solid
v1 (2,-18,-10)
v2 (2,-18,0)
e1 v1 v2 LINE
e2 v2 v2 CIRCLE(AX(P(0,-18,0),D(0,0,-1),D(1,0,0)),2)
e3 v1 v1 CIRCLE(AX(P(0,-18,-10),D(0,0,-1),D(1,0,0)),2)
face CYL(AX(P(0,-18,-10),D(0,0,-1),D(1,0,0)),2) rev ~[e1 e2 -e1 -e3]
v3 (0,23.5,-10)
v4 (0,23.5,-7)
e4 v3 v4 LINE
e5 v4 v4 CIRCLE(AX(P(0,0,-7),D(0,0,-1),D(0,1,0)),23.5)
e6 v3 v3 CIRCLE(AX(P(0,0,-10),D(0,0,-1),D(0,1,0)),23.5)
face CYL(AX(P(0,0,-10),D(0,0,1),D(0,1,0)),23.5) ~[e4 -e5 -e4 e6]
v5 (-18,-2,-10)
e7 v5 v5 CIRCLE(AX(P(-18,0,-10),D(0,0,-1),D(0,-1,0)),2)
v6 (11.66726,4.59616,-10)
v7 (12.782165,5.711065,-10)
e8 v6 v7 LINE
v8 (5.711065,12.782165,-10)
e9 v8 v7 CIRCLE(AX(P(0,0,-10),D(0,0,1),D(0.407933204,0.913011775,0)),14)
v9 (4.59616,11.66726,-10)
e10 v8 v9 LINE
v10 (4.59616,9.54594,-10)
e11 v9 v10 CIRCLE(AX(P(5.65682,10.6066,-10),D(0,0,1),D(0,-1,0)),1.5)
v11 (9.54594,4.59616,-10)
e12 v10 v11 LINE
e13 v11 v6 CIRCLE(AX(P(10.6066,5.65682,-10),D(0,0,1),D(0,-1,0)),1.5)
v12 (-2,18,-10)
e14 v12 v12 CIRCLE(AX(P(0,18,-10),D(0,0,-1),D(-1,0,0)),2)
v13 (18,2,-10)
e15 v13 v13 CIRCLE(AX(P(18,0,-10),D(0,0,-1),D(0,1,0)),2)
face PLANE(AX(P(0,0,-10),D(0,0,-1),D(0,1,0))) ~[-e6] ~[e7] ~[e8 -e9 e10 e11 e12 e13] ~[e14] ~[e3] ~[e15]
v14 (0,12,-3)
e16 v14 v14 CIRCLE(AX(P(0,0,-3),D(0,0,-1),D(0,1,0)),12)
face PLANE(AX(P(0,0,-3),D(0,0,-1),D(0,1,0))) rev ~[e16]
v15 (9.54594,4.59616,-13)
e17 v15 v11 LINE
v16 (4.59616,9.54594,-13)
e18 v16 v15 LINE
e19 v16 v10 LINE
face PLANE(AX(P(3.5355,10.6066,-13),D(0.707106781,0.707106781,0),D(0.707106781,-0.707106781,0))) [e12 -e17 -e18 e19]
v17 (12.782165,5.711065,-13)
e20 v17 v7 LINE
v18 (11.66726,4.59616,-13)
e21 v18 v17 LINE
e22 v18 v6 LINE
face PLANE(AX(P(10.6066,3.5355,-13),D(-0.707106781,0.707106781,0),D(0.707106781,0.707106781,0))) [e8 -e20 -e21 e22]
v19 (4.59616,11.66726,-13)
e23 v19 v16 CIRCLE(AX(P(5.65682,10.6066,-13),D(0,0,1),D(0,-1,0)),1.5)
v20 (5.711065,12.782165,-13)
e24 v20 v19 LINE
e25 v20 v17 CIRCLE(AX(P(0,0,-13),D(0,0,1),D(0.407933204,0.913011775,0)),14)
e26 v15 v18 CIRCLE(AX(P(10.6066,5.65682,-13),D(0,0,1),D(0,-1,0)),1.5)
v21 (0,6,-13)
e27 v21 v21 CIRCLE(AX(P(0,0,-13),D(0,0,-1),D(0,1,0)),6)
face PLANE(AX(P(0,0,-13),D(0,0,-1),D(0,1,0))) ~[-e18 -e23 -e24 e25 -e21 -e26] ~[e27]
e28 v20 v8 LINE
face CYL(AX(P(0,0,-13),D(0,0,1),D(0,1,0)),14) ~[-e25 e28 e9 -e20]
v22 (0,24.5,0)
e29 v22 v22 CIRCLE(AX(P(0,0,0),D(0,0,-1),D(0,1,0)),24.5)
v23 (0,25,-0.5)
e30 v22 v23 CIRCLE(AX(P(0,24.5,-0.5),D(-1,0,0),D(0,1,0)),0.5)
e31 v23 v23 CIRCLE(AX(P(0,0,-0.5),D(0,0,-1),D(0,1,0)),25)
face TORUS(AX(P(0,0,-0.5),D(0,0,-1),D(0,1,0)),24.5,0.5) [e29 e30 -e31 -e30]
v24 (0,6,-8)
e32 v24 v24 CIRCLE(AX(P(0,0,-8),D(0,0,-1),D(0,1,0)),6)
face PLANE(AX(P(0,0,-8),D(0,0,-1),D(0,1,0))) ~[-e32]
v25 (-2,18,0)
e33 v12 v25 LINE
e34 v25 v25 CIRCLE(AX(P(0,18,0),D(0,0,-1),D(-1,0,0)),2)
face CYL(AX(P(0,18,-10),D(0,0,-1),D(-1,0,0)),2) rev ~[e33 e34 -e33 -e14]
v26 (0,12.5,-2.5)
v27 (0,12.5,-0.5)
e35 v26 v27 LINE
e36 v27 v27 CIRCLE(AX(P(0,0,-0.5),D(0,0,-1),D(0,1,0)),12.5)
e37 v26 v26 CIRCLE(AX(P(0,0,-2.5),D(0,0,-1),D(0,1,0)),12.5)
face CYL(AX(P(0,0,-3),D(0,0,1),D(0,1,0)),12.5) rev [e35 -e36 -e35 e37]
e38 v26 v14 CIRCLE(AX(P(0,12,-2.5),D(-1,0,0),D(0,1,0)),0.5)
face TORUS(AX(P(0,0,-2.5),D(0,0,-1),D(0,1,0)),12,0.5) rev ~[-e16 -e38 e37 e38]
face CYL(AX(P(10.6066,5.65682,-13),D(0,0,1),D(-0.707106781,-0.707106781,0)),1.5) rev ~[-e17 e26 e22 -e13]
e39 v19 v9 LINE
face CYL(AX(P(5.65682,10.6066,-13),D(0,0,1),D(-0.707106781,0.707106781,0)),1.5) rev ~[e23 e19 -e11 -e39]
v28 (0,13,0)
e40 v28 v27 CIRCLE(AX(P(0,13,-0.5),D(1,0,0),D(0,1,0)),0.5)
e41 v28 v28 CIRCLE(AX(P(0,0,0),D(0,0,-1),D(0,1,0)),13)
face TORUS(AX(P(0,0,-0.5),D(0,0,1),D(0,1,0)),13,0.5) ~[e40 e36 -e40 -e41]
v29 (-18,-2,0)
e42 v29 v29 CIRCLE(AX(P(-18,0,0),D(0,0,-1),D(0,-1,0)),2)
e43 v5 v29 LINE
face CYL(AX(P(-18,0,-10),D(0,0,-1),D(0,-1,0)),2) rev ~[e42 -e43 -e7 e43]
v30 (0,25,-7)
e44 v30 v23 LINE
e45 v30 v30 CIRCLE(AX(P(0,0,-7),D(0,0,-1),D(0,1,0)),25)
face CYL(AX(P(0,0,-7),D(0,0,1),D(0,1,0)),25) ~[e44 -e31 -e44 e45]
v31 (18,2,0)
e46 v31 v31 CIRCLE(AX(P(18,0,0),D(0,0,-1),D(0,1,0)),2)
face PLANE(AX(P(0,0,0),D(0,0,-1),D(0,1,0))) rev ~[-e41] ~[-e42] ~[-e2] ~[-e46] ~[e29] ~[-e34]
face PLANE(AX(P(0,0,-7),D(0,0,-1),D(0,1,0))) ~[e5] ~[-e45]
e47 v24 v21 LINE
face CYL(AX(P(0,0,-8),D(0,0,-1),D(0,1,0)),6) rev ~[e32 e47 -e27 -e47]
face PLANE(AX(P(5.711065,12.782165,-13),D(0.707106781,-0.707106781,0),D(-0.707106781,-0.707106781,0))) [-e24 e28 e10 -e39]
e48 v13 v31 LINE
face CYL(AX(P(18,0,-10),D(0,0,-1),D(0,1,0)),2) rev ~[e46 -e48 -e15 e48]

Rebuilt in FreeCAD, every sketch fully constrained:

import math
import FreeCAD as App
import Part
import Sketcher
from FreeCAD import Vector
Q = App.Units.Quantity


def edges_at(feature, points):
    """Names of the edges that pass closest to the given points."""
    edges = feature.Shape.Edges
    near = lambda p: min(range(len(edges)), key=lambda i: edges[i].distToShape(Part.Vertex(*p))[0])
    return sorted({f"Edge{near(p) + 1}" for p in points})

doc = App.newDocument("Part")
params = doc.addObject("Spreadsheet::Sheet", "Params")
for row, (alias, value) in enumerate([
    ("sketch1_width", "6 mm"),
    ("sketch1_height", "3 mm"),
    ("sketch1_height2", "5 mm"),
    ("sketch1_width2", "8 mm"),
    ("sketch1_width3", "12.5 mm"),
    ("revolution_angle", "360 deg"),
    ("sketch2_diameter", "4 mm"),
    ("pocket1_length", "10 mm"),
    ("sketch3_length", "10 mm"),
    ("sketch3_radius", "14 mm"),
    ("pocket2_length", "3 mm"),
    ("fillet_radius", "1.5 mm"),
    ("fillet2_radius", "0.5 mm"),
], start=1):
    params.set(f"A{row}", alias)
    params.set(f"B{row}", "=" + value)
    params.setAlias(f"B{row}", alias)

body = doc.addObject("PartDesign::Body", "Body")

sketch1 = body.newObject("Sketcher::SketchObject", "Sketch")
sketch1.AttachmentSupport = (doc.getObject("YZ_Plane"), [""])
sketch1.MapMode = "FlatFace"
sketch1.addGeometry([
    Part.LineSegment(Vector(12.5, 0, 0), Vector(12.5, -3, 0)),
    Part.LineSegment(Vector(12.5, -3, 0), Vector(0, -3, 0)),
    Part.LineSegment(Vector(0, -3, 0), Vector(0, -8, 0)),
    Part.LineSegment(Vector(0, -8, 0), Vector(6, -8, 0)),
    Part.LineSegment(Vector(6, -8, 0), Vector(6, -13, 0)),
    Part.LineSegment(Vector(6, -13, 0), Vector(14, -13, 0)),
    Part.LineSegment(Vector(14, -13, 0), Vector(14, -10, 0)),
    Part.LineSegment(Vector(14, -10, 0), Vector(23.5, -10, 0)),
    Part.LineSegment(Vector(23.5, -10, 0), Vector(23.5, -7, 0)),
    Part.LineSegment(Vector(23.5, -7, 0), Vector(25, -7, 0)),
    Part.LineSegment(Vector(25, -7, 0), Vector(25, 0, 0)),
    Part.LineSegment(Vector(25, 0, 0), Vector(12.5, 0, 0)),
], False)
sketch1.addConstraint([
    Sketcher.Constraint("Coincident", 0, 2, 1, 1),
    Sketcher.Constraint("Coincident", 1, 2, 2, 1),
    Sketcher.Constraint("Coincident", 2, 2, 3, 1),
    Sketcher.Constraint("Coincident", 3, 2, 4, 1),
    Sketcher.Constraint("Coincident", 4, 2, 5, 1),
    Sketcher.Constraint("Coincident", 5, 2, 6, 1),
    Sketcher.Constraint("Coincident", 6, 2, 7, 1),
    Sketcher.Constraint("Coincident", 7, 2, 8, 1),
    Sketcher.Constraint("Coincident", 8, 2, 9, 1),
    Sketcher.Constraint("Coincident", 9, 2, 10, 1),
    Sketcher.Constraint("Coincident", 10, 2, 11, 1),
    Sketcher.Constraint("Coincident", 11, 2, 0, 1),
    Sketcher.Constraint("Vertical", 0),
    Sketcher.Constraint("Horizontal", 1),
    Sketcher.Constraint("Vertical", 2),
    Sketcher.Constraint("Horizontal", 3),
    Sketcher.Constraint("Vertical", 4),
    Sketcher.Constraint("Horizontal", 5),
    Sketcher.Constraint("Vertical", 6),
    Sketcher.Constraint("Horizontal", 7),
    Sketcher.Constraint("Vertical", 8),
    Sketcher.Constraint("Horizontal", 9),
    Sketcher.Constraint("Vertical", 10),
    Sketcher.Constraint("Horizontal", 11),
    Sketcher.Constraint("PointOnObject", 1, 2, -2),
    Sketcher.Constraint("PointOnObject", 10, 2, -1),
    Sketcher.Constraint("Equal", 1, 11),
    Sketcher.Constraint("Equal", 2, 4),
    Sketcher.Constraint("Equal", 0, 6),
    Sketcher.Constraint("Equal", 6, 8),
    Sketcher.Constraint("DistanceX", 3, 1, 3, 2, Q("6 mm")),
    Sketcher.Constraint("DistanceY", 0, 2, 0, 1, Q("3 mm")),
    Sketcher.Constraint("DistanceY", 2, 2, 2, 1, Q("5 mm")),
    Sketcher.Constraint("DistanceX", 5, 1, 5, 2, Q("8 mm")),
    Sketcher.Constraint("DistanceX", 1, 2, 1, 1, Q("12.5 mm")),
    Sketcher.Constraint("DistanceX", 7, 1, 7, 2, Q("9.5 mm")),
])
sketch1.setExpression("Constraints[30]", "Params.sketch1_width")
sketch1.setExpression("Constraints[31]", "Params.sketch1_height")
sketch1.setExpression("Constraints[32]", "Params.sketch1_height2")
sketch1.setExpression("Constraints[33]", "Params.sketch1_width2")
sketch1.setExpression("Constraints[34]", "Params.sketch1_width3")
revolution = body.newObject("PartDesign::Revolution", "Revolution")
revolution.Profile = sketch1
revolution.ReferenceAxis = (sketch1, ["V_Axis"])
revolution.setExpression("Angle", "Params.revolution_angle")

sketch2 = body.newObject("Sketcher::SketchObject", "Sketch001")
sketch2.AttachmentSupport = (doc.getObject("XY_Plane"), [""])
sketch2.MapMode = "FlatFace"
sketch2.AttachmentOffset = App.Placement(Vector(0, 0, -10), App.Rotation())
sketch2.addGeometry(Part.Circle(Vector(0, 18, 0), Vector(0, 0, 1), 2), False)
sketch2.addConstraint([
    Sketcher.Constraint("PointOnObject", 0, 3, -2),
    Sketcher.Constraint("Diameter", 0, Q("4 mm")),
    Sketcher.Constraint("DistanceY", -1, 1, 0, 3, Q("18 mm")),
])
sketch2.setExpression("Constraints[1]", "Params.sketch2_diameter")
pocket1 = body.newObject("PartDesign::Pocket", "Pocket")
pocket1.Profile = sketch2
pocket1.setExpression("Length", "Params.pocket1_length")
pocket1.Reversed = True
doc.recompute()

polarpattern = body.newObject("PartDesign::PolarPattern", "PolarPattern")
polarpattern.Originals = [pocket1]
polarpattern.Axis = (doc.getObject("Z_Axis"), [""])
polarpattern.Angle = 360
polarpattern.Occurrences = 4
body.Tip = polarpattern

sketch3 = body.newObject("Sketcher::SketchObject", "Sketch002")
sketch3.AttachmentSupport = (doc.getObject("XY_Plane"), [""])
sketch3.MapMode = "FlatFace"
sketch3.AttachmentOffset = App.Placement(Vector(0, 0, -13), App.Rotation())
sketch3.addGeometry([
    Part.ArcOfCircle(Part.Circle(Vector(0, 0, 0), Vector(0, 0, 1), 14), math.radians(24), math.radians(66)),
    Part.LineSegment(Vector(12.8, 5.7, 0), Vector(10.6, 3.5, 0)),
    Part.LineSegment(Vector(10.6, 3.5, 0), Vector(3.5, 10.6, 0)),
    Part.LineSegment(Vector(3.5, 10.6, 0), Vector(5.7, 12.8, 0)),
], False)
sketch3.addConstraint([
    Sketcher.Constraint("Coincident", 0, 1, 1, 1),
    Sketcher.Constraint("Coincident", 1, 2, 2, 1),
    Sketcher.Constraint("Coincident", 2, 2, 3, 1),
    Sketcher.Constraint("Coincident", 3, 2, 0, 2),
    Sketcher.Constraint("Coincident", 0, 3, -1, 1),
    Sketcher.Constraint("Perpendicular", 1, 2),
    Sketcher.Constraint("Perpendicular", 2, 3),
    Sketcher.Constraint("Equal", 1, 3),
    Sketcher.Constraint("Angle", 1, Q("-135 deg")),
    Sketcher.Constraint("Distance", 2, Q("10 mm")),
    Sketcher.Constraint("Radius", 0, Q("14 mm")),
    Sketcher.Constraint("Distance", 1, Q("3.0767 mm")),
])
sketch3.setExpression("Constraints[9]", "Params.sketch3_length")
sketch3.setExpression("Constraints[10]", "Params.sketch3_radius")
pocket2 = body.newObject("PartDesign::Pocket", "Pocket001")
pocket2.Profile = sketch3
pocket2.setExpression("Length", "Params.pocket2_length")
pocket2.Reversed = True
doc.recompute()

fillet = body.newObject("PartDesign::Fillet", "Fillet")
fillet.Base = (pocket2, edges_at(pocket2, [(3.535, 10.607, -11.5), (10.607, 3.535, -11.5)]))
fillet.setExpression("Radius", "Params.fillet_radius")
doc.recompute()

fillet2 = body.newObject("PartDesign::Fillet", "Fillet001")
fillet2.Base = (fillet, edges_at(fillet, [(0, -12.5, 0), (0, -12.5, -3), (0, -25, 0)]))
fillet2.setExpression("Radius", "Params.fillet2_radius")

doc.recompute()
